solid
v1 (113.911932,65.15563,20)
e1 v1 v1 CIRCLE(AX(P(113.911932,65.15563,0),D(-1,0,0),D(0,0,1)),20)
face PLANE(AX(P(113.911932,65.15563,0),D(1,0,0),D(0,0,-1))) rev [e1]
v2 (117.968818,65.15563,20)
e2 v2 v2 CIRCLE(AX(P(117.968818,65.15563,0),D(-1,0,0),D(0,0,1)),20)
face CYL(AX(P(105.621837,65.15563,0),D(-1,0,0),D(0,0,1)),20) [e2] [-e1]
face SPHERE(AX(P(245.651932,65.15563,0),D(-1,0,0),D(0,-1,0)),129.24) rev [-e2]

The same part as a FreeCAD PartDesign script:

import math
import FreeCAD as App
import Part
import Sketcher

V = App.Vector
Q = App.Units.Quantity

doc = App.newDocument("Part")
body = doc.addObject("PartDesign::Body", "Body")

sketch1 = body.newObject("Sketcher::SketchObject", "Sketch")
sketch1.AttachmentSupport = (doc.getObject("XY_Plane"), [""])
sketch1.MapMode = "FlatFace"
sketch1.addGeometry([
    Part.LineSegment(V(113.9, 85.2, 0), V(113.9, 65.2, 0)),
    Part.LineSegment(V(113.9, 65.2, 0), V(116.4, 65.2, 0)),
    Part.ArcOfCircle(Part.Circle(V(245.7, 65.2, 0), V(0, 0, 1), 129.2), math.radians(171.1), math.radians(180)),
    Part.LineSegment(V(118, 85.2, 0), V(113.9, 85.2, 0)),
], False)
sketch1.addGeometry(Part.LineSegment(V(113.9, 65.2, 0), V(245.7, 65.2, 0)), True)
sketch1.addConstraint([
    Sketcher.Constraint("Coincident", 0, 2, 1, 1),
    Sketcher.Constraint("Coincident", 1, 2, 2, 2),
    Sketcher.Constraint("Coincident", 2, 1, 3, 1),
    Sketcher.Constraint("Coincident", 3, 2, 0, 1),
    Sketcher.Constraint("Vertical", 0),
    Sketcher.Constraint("Horizontal", 1),
    Sketcher.Constraint("Horizontal", 3),
    Sketcher.Constraint("Horizontal", 4),
    Sketcher.Constraint("Coincident", 4, 1, 0, 2),
    Sketcher.Constraint("Coincident", 4, 2, 2, 3),
    Sketcher.Constraint("DistanceY", 0, 2, 0, 1, Q("20 mm")),
    Sketcher.Constraint("Radius", 2, Q("129.24 mm")),
    Sketcher.Constraint("DistanceX", 1, 1, 1, 2, Q("2.5 mm")),
    Sketcher.Constraint("DistanceX", -1, 1, 2, 3, Q("245.651932 mm")),
    Sketcher.Constraint("DistanceY", -1, 1, 2, 3, Q("65.15563 mm")),
])
revolution = body.newObject("PartDesign::Revolution", "Revolution")
revolution.Profile = sketch1
revolution.ReferenceAxis = (sketch1, ["Axis0"])
revolution.Angle = 360

doc.recompute()
